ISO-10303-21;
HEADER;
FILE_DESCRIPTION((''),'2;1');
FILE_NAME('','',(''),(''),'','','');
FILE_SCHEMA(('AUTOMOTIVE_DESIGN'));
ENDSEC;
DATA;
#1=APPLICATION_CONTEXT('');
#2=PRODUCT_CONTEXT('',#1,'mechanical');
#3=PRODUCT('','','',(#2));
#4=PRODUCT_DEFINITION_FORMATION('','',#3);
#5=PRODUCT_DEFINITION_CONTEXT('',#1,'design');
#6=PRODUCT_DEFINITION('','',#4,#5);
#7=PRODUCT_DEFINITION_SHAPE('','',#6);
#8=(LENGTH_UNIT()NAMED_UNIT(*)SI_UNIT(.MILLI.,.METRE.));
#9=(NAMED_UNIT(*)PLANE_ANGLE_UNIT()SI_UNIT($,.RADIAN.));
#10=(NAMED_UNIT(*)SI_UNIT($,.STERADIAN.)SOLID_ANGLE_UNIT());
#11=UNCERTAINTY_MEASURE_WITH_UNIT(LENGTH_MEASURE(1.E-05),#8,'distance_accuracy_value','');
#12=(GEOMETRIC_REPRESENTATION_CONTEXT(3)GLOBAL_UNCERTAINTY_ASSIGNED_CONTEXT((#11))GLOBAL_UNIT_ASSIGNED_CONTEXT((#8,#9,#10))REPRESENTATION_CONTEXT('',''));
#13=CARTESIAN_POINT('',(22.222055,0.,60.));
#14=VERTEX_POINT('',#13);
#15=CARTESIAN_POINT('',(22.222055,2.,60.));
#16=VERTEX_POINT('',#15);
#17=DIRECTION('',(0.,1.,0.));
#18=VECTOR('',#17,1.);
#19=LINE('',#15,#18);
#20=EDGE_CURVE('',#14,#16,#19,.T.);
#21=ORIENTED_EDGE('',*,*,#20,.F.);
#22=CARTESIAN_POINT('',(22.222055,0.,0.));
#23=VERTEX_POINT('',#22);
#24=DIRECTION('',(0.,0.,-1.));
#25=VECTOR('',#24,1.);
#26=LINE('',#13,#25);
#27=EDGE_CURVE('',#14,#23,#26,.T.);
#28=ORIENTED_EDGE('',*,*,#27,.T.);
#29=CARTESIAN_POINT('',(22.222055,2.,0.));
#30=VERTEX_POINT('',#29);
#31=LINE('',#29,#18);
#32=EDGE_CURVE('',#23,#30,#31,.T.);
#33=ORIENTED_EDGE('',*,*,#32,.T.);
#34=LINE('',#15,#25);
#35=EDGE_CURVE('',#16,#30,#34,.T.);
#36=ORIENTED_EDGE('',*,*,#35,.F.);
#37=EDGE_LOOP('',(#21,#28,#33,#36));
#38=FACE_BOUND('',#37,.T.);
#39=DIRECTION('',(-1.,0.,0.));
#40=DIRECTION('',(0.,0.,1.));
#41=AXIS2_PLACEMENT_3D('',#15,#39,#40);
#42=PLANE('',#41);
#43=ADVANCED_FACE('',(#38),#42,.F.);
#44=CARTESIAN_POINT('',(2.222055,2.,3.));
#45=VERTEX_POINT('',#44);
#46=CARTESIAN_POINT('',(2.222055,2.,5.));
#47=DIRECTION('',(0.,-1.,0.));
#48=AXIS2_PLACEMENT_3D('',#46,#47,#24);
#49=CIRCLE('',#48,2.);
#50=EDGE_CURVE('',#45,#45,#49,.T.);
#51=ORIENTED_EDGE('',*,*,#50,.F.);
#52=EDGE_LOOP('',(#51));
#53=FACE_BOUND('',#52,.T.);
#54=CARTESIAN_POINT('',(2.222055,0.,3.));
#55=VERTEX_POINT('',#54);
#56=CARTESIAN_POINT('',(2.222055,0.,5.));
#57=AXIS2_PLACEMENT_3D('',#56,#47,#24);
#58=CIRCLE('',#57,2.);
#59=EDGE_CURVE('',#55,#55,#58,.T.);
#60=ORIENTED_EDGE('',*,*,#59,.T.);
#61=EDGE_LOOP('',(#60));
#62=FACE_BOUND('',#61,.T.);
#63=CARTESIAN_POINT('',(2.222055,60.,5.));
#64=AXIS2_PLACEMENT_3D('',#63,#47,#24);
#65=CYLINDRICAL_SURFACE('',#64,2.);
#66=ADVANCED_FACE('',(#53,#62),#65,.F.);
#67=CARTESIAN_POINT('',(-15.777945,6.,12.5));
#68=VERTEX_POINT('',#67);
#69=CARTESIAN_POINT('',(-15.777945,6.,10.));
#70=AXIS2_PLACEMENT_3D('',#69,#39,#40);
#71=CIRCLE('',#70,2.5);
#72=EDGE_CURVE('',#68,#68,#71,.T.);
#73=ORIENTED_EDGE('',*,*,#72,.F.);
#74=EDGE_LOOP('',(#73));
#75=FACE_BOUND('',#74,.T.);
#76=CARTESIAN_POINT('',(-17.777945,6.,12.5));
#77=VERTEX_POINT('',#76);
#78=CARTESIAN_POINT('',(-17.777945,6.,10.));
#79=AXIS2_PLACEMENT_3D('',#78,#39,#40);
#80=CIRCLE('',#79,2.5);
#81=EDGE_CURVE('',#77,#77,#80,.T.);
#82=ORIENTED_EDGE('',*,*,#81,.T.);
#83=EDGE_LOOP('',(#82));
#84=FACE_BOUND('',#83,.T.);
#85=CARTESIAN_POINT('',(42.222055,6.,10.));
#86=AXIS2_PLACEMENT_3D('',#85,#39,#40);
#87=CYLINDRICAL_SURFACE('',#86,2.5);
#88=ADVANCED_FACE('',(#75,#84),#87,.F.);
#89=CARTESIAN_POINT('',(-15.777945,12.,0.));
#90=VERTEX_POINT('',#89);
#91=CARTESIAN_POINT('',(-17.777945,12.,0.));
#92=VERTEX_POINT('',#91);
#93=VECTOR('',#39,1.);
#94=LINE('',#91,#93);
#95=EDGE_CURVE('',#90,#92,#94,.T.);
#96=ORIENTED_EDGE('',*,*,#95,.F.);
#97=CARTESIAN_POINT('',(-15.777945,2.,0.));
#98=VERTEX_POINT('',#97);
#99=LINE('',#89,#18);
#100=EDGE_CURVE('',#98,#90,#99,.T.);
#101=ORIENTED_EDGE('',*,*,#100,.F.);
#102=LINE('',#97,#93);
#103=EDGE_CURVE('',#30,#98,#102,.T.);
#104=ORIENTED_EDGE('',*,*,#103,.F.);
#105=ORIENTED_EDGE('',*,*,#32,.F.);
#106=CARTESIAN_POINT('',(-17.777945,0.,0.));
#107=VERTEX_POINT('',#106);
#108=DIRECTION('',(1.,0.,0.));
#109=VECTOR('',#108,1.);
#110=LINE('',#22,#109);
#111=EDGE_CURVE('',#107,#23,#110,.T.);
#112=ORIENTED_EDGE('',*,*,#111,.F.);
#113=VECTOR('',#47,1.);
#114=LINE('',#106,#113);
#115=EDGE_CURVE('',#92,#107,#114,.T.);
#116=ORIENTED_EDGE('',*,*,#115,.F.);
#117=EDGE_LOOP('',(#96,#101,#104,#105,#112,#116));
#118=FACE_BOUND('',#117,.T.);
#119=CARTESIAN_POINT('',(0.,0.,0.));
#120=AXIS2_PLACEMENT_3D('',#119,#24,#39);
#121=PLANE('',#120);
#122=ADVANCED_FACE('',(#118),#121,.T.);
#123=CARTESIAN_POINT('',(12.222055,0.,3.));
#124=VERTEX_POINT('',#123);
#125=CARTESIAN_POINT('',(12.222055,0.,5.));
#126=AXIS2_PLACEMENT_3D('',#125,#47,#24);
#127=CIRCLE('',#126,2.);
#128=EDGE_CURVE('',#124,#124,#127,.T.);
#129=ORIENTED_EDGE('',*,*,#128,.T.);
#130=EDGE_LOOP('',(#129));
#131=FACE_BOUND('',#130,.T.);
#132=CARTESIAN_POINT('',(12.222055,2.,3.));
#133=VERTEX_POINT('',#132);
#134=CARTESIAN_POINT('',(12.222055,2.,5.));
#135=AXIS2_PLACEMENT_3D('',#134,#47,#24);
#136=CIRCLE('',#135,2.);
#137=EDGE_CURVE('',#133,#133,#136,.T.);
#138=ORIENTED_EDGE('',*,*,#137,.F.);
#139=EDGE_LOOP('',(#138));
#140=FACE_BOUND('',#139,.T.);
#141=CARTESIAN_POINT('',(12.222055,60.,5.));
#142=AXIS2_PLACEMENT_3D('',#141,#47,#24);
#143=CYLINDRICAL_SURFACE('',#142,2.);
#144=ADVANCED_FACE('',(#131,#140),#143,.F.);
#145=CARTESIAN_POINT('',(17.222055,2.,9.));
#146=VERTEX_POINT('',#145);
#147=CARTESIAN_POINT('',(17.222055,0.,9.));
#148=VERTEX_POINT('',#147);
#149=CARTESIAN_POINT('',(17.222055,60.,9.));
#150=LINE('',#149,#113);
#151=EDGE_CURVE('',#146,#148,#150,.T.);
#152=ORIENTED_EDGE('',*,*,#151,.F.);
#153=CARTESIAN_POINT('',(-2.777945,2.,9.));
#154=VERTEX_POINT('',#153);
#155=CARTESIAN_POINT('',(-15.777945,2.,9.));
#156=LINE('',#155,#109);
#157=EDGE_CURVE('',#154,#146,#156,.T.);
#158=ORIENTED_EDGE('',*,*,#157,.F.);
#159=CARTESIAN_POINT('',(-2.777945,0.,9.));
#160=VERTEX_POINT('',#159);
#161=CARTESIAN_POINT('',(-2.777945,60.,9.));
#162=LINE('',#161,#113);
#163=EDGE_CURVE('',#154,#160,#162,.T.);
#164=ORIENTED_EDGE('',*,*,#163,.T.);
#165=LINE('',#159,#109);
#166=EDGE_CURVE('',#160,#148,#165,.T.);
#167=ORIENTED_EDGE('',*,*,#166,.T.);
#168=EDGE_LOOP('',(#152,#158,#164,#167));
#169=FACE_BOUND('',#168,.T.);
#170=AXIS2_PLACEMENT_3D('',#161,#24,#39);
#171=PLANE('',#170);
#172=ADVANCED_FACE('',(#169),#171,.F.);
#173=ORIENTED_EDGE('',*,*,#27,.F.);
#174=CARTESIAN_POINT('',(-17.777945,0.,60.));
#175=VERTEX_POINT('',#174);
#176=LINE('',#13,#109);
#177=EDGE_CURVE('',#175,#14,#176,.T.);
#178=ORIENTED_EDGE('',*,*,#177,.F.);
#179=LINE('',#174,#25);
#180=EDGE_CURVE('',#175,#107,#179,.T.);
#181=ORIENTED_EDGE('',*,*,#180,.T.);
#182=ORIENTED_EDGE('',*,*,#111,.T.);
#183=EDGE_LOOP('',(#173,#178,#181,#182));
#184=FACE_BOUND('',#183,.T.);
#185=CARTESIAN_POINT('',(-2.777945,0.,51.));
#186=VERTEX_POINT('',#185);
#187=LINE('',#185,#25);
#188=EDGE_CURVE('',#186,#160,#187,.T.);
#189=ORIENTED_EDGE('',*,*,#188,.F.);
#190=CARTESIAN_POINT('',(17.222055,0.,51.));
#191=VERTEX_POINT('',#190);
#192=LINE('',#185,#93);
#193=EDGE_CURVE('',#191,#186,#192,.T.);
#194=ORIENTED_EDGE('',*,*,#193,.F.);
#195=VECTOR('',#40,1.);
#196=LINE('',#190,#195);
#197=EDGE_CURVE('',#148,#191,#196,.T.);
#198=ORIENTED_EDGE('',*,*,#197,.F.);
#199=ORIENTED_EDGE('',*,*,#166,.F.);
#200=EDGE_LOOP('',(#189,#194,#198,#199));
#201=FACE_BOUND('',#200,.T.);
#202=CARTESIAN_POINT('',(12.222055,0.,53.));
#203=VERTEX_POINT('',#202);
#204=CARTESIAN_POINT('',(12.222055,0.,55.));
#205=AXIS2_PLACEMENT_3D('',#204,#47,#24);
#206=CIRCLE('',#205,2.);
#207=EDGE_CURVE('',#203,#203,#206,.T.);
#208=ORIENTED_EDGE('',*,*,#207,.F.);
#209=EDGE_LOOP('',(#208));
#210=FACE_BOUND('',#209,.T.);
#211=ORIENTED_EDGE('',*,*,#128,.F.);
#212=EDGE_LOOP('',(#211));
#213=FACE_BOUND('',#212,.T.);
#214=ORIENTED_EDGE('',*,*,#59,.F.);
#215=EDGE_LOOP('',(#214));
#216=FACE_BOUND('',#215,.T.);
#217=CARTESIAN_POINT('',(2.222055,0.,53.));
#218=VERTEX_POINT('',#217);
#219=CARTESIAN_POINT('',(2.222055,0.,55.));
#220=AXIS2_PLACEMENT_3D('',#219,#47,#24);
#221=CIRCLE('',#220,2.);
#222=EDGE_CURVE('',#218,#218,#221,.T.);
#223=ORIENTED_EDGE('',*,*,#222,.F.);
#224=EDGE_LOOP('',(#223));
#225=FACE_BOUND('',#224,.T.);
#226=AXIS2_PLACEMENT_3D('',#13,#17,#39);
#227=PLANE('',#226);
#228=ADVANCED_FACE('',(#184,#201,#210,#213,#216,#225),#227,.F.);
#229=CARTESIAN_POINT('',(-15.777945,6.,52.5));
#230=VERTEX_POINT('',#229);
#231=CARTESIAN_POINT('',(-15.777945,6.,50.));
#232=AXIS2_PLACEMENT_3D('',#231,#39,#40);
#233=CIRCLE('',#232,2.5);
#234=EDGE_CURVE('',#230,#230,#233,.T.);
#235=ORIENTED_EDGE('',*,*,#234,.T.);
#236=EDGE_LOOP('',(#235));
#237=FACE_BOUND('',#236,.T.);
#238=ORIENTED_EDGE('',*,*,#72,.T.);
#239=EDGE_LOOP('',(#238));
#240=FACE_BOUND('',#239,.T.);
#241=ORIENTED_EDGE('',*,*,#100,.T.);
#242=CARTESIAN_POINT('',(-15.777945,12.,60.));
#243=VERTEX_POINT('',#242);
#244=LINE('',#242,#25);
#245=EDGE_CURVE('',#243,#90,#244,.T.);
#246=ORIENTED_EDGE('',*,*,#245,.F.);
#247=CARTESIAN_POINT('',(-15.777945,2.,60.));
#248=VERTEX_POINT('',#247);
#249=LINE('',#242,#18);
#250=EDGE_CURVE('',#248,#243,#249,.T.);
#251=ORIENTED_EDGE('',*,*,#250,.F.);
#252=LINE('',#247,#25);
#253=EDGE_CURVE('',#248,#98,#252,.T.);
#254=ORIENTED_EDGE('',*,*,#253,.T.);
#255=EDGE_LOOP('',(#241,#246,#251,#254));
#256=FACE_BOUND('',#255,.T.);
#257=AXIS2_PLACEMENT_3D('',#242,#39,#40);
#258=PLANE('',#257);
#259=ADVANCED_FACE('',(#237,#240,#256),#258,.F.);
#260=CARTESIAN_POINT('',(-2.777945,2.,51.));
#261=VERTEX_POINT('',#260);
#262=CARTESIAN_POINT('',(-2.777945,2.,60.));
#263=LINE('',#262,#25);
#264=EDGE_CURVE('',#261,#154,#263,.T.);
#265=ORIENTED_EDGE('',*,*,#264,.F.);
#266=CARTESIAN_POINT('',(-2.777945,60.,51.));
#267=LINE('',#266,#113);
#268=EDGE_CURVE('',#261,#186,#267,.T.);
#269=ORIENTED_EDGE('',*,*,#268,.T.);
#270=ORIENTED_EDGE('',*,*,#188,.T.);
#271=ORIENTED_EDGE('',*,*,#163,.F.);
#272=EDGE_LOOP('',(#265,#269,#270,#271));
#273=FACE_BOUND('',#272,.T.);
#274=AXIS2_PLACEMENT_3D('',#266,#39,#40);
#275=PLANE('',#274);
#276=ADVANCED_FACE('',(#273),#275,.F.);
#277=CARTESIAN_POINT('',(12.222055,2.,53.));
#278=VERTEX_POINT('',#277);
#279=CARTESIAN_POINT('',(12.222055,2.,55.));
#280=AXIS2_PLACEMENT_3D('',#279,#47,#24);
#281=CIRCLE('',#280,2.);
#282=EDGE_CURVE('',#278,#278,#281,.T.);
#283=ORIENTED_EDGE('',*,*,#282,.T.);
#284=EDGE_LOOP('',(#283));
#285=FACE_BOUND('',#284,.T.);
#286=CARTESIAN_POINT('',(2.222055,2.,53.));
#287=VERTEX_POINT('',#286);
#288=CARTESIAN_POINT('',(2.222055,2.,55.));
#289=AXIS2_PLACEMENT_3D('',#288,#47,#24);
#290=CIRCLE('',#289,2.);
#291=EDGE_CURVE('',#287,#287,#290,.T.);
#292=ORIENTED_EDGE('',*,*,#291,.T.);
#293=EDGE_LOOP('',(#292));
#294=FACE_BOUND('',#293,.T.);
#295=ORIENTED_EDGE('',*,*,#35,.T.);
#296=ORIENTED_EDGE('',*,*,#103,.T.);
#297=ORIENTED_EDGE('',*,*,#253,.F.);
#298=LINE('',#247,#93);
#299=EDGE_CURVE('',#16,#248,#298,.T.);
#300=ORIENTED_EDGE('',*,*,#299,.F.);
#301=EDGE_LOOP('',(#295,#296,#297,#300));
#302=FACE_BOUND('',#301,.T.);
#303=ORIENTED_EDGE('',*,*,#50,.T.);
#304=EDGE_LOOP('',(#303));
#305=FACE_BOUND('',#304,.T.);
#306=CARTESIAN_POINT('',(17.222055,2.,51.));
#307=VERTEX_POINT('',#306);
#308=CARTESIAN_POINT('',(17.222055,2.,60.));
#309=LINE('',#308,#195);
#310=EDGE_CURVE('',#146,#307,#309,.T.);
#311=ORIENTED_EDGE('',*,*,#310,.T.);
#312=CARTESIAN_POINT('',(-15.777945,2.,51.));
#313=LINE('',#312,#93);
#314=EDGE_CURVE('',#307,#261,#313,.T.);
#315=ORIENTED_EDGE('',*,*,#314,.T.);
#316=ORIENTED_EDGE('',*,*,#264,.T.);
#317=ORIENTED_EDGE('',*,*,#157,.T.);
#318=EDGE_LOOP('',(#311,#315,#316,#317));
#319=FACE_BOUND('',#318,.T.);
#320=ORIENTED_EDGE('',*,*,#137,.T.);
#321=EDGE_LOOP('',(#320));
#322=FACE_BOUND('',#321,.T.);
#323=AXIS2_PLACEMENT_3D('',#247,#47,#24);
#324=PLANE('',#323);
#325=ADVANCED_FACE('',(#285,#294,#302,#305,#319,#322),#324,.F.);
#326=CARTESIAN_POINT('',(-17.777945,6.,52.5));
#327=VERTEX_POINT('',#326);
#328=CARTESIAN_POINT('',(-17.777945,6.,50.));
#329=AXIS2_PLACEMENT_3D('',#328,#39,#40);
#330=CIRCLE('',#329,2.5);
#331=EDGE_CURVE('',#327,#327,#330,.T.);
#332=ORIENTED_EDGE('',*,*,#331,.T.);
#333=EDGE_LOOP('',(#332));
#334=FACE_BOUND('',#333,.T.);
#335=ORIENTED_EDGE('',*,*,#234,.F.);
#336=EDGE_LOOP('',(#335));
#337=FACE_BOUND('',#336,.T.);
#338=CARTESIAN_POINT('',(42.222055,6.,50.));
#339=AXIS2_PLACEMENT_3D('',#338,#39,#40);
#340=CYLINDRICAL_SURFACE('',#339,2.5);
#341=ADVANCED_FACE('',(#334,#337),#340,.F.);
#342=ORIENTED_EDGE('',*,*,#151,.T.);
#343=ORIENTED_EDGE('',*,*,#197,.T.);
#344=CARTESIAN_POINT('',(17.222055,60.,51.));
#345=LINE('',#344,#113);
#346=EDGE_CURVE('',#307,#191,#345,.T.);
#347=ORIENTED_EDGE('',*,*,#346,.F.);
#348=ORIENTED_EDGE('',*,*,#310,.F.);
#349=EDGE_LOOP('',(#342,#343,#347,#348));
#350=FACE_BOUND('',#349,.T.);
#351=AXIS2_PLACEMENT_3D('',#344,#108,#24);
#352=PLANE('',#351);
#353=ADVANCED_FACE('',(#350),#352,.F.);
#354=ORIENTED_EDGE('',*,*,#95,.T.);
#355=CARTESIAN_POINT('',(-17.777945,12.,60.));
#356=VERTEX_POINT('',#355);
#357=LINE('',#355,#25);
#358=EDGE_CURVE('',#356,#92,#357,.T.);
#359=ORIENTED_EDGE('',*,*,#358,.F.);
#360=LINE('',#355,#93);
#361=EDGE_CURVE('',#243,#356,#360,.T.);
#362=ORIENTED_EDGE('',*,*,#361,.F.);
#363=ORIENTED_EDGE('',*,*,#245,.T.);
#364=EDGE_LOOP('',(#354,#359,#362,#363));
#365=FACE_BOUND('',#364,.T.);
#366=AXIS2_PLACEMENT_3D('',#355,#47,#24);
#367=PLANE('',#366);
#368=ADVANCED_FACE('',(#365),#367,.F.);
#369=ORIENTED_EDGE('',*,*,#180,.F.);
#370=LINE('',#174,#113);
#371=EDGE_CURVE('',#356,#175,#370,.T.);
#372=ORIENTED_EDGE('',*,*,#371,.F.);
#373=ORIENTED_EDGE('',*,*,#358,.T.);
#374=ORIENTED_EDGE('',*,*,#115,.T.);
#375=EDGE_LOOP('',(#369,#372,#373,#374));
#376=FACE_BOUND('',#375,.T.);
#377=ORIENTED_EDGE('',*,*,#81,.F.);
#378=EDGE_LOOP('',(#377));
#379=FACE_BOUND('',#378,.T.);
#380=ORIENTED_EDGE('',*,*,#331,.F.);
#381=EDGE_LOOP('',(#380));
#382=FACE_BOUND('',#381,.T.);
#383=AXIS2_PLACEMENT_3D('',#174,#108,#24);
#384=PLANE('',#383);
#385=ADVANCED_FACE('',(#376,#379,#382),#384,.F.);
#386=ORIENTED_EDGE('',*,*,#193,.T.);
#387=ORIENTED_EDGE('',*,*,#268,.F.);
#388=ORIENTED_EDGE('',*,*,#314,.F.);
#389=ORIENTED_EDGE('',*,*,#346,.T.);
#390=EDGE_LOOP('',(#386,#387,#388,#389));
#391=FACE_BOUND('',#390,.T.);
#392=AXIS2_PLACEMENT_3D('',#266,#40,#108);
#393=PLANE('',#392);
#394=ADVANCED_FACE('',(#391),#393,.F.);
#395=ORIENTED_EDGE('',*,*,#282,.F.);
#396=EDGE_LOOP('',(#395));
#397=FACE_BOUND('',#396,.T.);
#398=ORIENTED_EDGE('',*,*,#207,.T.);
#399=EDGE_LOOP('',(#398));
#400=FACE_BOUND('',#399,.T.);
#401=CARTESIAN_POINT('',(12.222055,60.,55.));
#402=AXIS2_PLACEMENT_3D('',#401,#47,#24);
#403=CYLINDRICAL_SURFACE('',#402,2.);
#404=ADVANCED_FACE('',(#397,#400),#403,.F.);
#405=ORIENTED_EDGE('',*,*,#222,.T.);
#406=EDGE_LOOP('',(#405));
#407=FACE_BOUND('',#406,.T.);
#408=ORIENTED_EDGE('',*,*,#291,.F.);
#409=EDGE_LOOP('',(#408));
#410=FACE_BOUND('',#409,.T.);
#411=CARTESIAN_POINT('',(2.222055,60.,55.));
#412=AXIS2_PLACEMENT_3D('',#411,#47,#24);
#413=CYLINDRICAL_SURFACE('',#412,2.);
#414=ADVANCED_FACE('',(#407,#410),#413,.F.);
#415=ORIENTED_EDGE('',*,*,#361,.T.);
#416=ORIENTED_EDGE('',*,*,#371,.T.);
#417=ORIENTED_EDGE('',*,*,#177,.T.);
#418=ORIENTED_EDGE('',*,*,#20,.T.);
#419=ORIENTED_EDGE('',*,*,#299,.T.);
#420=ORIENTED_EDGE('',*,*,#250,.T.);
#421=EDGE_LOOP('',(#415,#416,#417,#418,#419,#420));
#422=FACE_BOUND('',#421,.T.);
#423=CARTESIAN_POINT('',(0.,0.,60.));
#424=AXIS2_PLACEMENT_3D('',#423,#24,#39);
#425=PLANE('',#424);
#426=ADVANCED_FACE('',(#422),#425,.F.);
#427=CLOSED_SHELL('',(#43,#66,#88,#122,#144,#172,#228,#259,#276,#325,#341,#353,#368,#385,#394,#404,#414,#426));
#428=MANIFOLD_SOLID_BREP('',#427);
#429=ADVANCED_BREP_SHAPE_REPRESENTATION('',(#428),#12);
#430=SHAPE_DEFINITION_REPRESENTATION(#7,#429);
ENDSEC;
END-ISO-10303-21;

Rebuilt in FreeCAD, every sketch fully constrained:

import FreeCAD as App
import Part
import Sketcher

V = App.Vector
Q = App.Units.Quantity


def add_polygon(sketch, points):
    """Adds a closed chain of lines whose ends are joined by coincident constraints."""
    first, n = sketch.GeometryCount, len(points)
    for a, b in zip(points, points[1:] + points[:1]):
        sketch.addGeometry(Part.LineSegment(App.Vector(*a, 0), App.Vector(*b, 0)), False)
    for i in range(n):
        sketch.addConstraint(Sketcher.Constraint("Coincident", first + i, 2, first + (i + 1) % n, 1))

doc = App.newDocument("Part")
body = doc.addObject("PartDesign::Body", "Body")

sketch1 = body.newObject("Sketcher::SketchObject", "Sketch")
sketch1.AttachmentSupport = (doc.getObject("XY_Plane"), [""])
sketch1.MapMode = "FlatFace"
add_polygon(sketch1, [(-17.8, 0), (22.2, 0), (22.2, 2), (-15.8, 2), (-15.8, 12), (-17.8, 12)])
sketch1.addConstraint([
    Sketcher.Constraint("Horizontal", 0),
    Sketcher.Constraint("Vertical", 1),
    Sketcher.Constraint("Horizontal", 2),
    Sketcher.Constraint("Vertical", 3),
    Sketcher.Constraint("Horizontal", 4),
    Sketcher.Constraint("Vertical", 5),
    Sketcher.Constraint("PointOnObject", 0, 2, -1),
    Sketcher.Constraint("Equal", 4, 1),
    Sketcher.Constraint("DistanceX", 0, 1, 0, 2, Q("40 mm")),
    Sketcher.Constraint("DistanceX", 2, 2, 2, 1, Q("38 mm")),
    Sketcher.Constraint("DistanceY", 3, 1, 3, 2, Q("10 mm")),
    Sketcher.Constraint("DistanceX", -1, 1, 0, 2, Q("22.222055 mm")),
])
pad1 = body.newObject("PartDesign::Pad", "Pad")
pad1.Profile = sketch1
pad1.Length = 60

sketch2 = body.newObject("Sketcher::SketchObject", "Sketch001")
sketch2.AttachmentSupport = (doc.getObject("YZ_Plane"), [""])
sketch2.MapMode = "FlatFace"
sketch2.AttachmentOffset = App.Placement(V(0, 0, -17.777945), App.Rotation())
sketch2.addGeometry([
    Part.Circle(V(6, 10, 0), V(0, 0, 1), 2.5),
    Part.Circle(V(6, 50, 0), V(0, 0, 1), 2.5),
], False)
sketch2.addConstraint([
    Sketcher.Constraint("Equal", 0, 1),
    Sketcher.Constraint("Vertical", 0, 3, 1, 3),
    Sketcher.Constraint("Diameter", 0, Q("5 mm")),
    Sketcher.Constraint("DistanceX", -1, 1, 0, 3, Q("6 mm")),
    Sketcher.Constraint("DistanceY", -1, 1, 0, 3, Q("10 mm")),
    Sketcher.Constraint("DistanceY", -1, 1, 1, 3, Q("50 mm")),
])
pocket1 = body.newObject("PartDesign::Pocket", "Pocket")
pocket1.Profile = sketch2
pocket1.Length = 60
pocket1.Reversed = True

sketch3 = body.newObject("Sketcher::SketchObject", "Sketch002")
sketch3.AttachmentSupport = (doc.getObject("XZ_Plane"), [""])
sketch3.MapMode = "FlatFace"
sketch3.addGeometry(Part.Circle(V(2.2, 55, 0), V(0, 0, 1), 2), False)
sketch3.addGeometry(Part.Circle(V(12.2, 55, 0), V(0, 0, 1), 2), False)
sketch3.addGeometry(Part.Circle(V(2.2, 5, 0), V(0, 0, 1), 2), False)
sketch3.addGeometry(Part.Circle(V(12.2, 5, 0), V(0, 0, 1), 2), False)
add_polygon(sketch3, [(-2.8, 51), (-2.8, 9), (17.2, 9), (17.2, 51)])
sketch3.addConstraint([
    Sketcher.Constraint("Vertical", 4),
    Sketcher.Constraint("Horizontal", 5),
    Sketcher.Constraint("Vertical", 6),
    Sketcher.Constraint("Horizontal", 7),
    Sketcher.Constraint("Equal", 0, 1),
    Sketcher.Constraint("Equal", 1, 2),
    Sketcher.Constraint("Equal", 2, 3),
    Sketcher.Constraint("Horizontal", 0, 3, 1, 3),
    Sketcher.Constraint("Horizontal", 2, 3, 3, 3),
    Sketcher.Constraint("Vertical", 0, 3, 2, 3),
    Sketcher.Constraint("Vertical", 1, 3, 3, 3),
    Sketcher.Constraint("Diameter", 0, Q("4 mm")),
    Sketcher.Constraint("DistanceX", 5, 1, 5, 2, Q("20 mm")),
    Sketcher.Constraint("DistanceY", 4, 2, 4, 1, Q("42 mm")),
    Sketcher.Constraint("DistanceY", -1, 1, 0, 3, Q("55 mm")),
    Sketcher.Constraint("DistanceY", -1, 1, 2, 3, Q("5 mm")),
    Sketcher.Constraint("DistanceY", -1, 1, 4, 2, Q("9 mm")),
    Sketcher.Constraint("DistanceX", 0, 3, 1, 3, Q("10 mm")),
    Sketcher.Constraint("DistanceX", 4, 2, 2, 3, Q("5 mm")),
    Sketcher.Constraint("DistanceX", -1, 1, 0, 3, Q("2.222055 mm")),
])
pocket2 = body.newObject("PartDesign::Pocket", "Pocket001")
pocket2.Profile = sketch3
pocket2.Length = 60

doc.recompute()
